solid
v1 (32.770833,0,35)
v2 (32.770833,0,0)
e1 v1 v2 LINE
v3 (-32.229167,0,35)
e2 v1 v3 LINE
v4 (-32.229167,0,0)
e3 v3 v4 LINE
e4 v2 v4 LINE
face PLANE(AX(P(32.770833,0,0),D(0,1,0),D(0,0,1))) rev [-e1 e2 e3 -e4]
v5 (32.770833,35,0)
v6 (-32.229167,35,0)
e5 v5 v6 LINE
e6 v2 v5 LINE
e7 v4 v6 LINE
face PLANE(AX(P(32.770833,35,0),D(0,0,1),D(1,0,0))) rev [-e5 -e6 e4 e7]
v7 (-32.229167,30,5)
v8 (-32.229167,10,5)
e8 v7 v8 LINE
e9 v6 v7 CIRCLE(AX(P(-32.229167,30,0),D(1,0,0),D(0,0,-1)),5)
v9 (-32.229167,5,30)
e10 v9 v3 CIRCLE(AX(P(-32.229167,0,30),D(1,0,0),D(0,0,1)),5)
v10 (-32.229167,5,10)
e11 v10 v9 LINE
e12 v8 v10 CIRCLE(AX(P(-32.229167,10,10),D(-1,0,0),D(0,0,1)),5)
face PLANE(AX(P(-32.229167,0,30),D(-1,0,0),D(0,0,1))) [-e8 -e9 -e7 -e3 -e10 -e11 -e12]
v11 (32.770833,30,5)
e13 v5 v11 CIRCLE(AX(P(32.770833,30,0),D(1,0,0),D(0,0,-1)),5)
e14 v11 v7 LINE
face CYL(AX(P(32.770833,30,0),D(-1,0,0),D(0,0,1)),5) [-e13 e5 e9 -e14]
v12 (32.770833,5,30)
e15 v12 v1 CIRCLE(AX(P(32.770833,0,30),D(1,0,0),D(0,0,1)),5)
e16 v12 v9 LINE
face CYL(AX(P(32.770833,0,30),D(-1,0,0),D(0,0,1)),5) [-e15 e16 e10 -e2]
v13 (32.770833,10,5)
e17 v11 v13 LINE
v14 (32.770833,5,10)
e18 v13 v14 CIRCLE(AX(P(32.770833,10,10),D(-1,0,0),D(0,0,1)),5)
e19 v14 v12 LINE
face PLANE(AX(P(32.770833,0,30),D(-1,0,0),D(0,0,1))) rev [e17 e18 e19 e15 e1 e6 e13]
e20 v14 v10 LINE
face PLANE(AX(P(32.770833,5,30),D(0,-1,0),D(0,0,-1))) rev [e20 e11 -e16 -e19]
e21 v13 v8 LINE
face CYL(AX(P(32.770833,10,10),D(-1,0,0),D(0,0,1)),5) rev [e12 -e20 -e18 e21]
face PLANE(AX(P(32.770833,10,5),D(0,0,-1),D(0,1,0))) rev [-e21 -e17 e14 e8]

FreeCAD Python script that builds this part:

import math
import FreeCAD as App
import Part
import Sketcher

V = App.Vector
Q = App.Units.Quantity

doc = App.newDocument("Part")
params = doc.addObject("Spreadsheet::Sheet", "Params")
for row, (alias, value) in enumerate([
    ("sketch1_radius", "5 mm"),
    ("sketch1_width", "35 mm"),
    ("pad1_length", "65 mm"),
], start=1):
    params.set(f"A{row}", alias)
    params.set(f"B{row}", "=" + value)
    params.setAlias(f"B{row}", alias)

body = doc.addObject("PartDesign::Body", "Body")

# Sketch on YZ plane
sketch1 = doc.addObject("Sketcher::SketchObject", "Sketch")
body.addObject(sketch1)
sketch1.AttachmentSupport = (doc.YZ_Plane, [""])
sketch1.MapMode = "FlatFace"
sketch1.AttachmentOffset = App.Placement(V(0, 0, -32.229167), App.Rotation())
sketch1.addGeometry([
    Part.LineSegment(V(0, 35, 0), V(0, 0, 0)),  # 0
    Part.LineSegment(V(0, 0, 0), V(35, 0, 0)),  # 1
    Part.ArcOfCircle(Part.Circle(V(30, 0, 0), V(0, 0, 1), 5), math.radians(0), math.radians(90)),  # 2
    Part.LineSegment(V(30, 5, 0), V(10, 5, 0)),  # 3
    Part.ArcOfCircle(Part.Circle(V(10, 10, 0), V(0, 0, 1), 5), math.radians(180), math.radians(270)),  # 4
    Part.LineSegment(V(5, 10, 0), V(5, 30, 0)),  # 5
    Part.ArcOfCircle(Part.Circle(V(0, 30, 0), V(0, 0, 1), 5), math.radians(0), math.radians(90)),  # 6
], False)
sketch1.addConstraint([
    Sketcher.Constraint("Coincident", 0, 2, 1, 1),
    Sketcher.Constraint("Coincident", 1, 2, 2, 1),
    Sketcher.Constraint("Tangent", 2, 2, 3, 1),
    Sketcher.Constraint("Tangent", 3, 2, 4, 2),
    Sketcher.Constraint("Tangent", 4, 1, 5, 1),
    Sketcher.Constraint("Tangent", 5, 2, 6, 1),
    Sketcher.Constraint("Coincident", 6, 2, 0, 1),
    Sketcher.Constraint("Vertical", 0),
    Sketcher.Constraint("Horizontal", 1),
    Sketcher.Constraint("Horizontal", 3),
    Sketcher.Constraint("Vertical", 5),
    Sketcher.Constraint("Coincident", 0, 2, -1, 1),
    Sketcher.Constraint("Equal", 2, 4),
    Sketcher.Constraint("Equal", 4, 6),
    Sketcher.Constraint("PointOnObject", 2, 3, -1),
    Sketcher.Constraint("PointOnObject", 6, 3, -2),
    Sketcher.Constraint("Equal", 1, 0),
    Sketcher.Constraint("Radius", 2, Q("5 mm")),
    Sketcher.Constraint("DistanceX", 1, 1, 1, 2, Q("35 mm")),
])
sketch1.setExpression("Constraints[17]", "Params.sketch1_radius")
sketch1.setExpression("Constraints[18]", "Params.sketch1_width")
pad1 = doc.addObject("PartDesign::Pad", "Pad")
body.addObject(pad1)
pad1.Profile = sketch1
pad1.setExpression("Length", "Params.pad1_length")

doc.recompute()
